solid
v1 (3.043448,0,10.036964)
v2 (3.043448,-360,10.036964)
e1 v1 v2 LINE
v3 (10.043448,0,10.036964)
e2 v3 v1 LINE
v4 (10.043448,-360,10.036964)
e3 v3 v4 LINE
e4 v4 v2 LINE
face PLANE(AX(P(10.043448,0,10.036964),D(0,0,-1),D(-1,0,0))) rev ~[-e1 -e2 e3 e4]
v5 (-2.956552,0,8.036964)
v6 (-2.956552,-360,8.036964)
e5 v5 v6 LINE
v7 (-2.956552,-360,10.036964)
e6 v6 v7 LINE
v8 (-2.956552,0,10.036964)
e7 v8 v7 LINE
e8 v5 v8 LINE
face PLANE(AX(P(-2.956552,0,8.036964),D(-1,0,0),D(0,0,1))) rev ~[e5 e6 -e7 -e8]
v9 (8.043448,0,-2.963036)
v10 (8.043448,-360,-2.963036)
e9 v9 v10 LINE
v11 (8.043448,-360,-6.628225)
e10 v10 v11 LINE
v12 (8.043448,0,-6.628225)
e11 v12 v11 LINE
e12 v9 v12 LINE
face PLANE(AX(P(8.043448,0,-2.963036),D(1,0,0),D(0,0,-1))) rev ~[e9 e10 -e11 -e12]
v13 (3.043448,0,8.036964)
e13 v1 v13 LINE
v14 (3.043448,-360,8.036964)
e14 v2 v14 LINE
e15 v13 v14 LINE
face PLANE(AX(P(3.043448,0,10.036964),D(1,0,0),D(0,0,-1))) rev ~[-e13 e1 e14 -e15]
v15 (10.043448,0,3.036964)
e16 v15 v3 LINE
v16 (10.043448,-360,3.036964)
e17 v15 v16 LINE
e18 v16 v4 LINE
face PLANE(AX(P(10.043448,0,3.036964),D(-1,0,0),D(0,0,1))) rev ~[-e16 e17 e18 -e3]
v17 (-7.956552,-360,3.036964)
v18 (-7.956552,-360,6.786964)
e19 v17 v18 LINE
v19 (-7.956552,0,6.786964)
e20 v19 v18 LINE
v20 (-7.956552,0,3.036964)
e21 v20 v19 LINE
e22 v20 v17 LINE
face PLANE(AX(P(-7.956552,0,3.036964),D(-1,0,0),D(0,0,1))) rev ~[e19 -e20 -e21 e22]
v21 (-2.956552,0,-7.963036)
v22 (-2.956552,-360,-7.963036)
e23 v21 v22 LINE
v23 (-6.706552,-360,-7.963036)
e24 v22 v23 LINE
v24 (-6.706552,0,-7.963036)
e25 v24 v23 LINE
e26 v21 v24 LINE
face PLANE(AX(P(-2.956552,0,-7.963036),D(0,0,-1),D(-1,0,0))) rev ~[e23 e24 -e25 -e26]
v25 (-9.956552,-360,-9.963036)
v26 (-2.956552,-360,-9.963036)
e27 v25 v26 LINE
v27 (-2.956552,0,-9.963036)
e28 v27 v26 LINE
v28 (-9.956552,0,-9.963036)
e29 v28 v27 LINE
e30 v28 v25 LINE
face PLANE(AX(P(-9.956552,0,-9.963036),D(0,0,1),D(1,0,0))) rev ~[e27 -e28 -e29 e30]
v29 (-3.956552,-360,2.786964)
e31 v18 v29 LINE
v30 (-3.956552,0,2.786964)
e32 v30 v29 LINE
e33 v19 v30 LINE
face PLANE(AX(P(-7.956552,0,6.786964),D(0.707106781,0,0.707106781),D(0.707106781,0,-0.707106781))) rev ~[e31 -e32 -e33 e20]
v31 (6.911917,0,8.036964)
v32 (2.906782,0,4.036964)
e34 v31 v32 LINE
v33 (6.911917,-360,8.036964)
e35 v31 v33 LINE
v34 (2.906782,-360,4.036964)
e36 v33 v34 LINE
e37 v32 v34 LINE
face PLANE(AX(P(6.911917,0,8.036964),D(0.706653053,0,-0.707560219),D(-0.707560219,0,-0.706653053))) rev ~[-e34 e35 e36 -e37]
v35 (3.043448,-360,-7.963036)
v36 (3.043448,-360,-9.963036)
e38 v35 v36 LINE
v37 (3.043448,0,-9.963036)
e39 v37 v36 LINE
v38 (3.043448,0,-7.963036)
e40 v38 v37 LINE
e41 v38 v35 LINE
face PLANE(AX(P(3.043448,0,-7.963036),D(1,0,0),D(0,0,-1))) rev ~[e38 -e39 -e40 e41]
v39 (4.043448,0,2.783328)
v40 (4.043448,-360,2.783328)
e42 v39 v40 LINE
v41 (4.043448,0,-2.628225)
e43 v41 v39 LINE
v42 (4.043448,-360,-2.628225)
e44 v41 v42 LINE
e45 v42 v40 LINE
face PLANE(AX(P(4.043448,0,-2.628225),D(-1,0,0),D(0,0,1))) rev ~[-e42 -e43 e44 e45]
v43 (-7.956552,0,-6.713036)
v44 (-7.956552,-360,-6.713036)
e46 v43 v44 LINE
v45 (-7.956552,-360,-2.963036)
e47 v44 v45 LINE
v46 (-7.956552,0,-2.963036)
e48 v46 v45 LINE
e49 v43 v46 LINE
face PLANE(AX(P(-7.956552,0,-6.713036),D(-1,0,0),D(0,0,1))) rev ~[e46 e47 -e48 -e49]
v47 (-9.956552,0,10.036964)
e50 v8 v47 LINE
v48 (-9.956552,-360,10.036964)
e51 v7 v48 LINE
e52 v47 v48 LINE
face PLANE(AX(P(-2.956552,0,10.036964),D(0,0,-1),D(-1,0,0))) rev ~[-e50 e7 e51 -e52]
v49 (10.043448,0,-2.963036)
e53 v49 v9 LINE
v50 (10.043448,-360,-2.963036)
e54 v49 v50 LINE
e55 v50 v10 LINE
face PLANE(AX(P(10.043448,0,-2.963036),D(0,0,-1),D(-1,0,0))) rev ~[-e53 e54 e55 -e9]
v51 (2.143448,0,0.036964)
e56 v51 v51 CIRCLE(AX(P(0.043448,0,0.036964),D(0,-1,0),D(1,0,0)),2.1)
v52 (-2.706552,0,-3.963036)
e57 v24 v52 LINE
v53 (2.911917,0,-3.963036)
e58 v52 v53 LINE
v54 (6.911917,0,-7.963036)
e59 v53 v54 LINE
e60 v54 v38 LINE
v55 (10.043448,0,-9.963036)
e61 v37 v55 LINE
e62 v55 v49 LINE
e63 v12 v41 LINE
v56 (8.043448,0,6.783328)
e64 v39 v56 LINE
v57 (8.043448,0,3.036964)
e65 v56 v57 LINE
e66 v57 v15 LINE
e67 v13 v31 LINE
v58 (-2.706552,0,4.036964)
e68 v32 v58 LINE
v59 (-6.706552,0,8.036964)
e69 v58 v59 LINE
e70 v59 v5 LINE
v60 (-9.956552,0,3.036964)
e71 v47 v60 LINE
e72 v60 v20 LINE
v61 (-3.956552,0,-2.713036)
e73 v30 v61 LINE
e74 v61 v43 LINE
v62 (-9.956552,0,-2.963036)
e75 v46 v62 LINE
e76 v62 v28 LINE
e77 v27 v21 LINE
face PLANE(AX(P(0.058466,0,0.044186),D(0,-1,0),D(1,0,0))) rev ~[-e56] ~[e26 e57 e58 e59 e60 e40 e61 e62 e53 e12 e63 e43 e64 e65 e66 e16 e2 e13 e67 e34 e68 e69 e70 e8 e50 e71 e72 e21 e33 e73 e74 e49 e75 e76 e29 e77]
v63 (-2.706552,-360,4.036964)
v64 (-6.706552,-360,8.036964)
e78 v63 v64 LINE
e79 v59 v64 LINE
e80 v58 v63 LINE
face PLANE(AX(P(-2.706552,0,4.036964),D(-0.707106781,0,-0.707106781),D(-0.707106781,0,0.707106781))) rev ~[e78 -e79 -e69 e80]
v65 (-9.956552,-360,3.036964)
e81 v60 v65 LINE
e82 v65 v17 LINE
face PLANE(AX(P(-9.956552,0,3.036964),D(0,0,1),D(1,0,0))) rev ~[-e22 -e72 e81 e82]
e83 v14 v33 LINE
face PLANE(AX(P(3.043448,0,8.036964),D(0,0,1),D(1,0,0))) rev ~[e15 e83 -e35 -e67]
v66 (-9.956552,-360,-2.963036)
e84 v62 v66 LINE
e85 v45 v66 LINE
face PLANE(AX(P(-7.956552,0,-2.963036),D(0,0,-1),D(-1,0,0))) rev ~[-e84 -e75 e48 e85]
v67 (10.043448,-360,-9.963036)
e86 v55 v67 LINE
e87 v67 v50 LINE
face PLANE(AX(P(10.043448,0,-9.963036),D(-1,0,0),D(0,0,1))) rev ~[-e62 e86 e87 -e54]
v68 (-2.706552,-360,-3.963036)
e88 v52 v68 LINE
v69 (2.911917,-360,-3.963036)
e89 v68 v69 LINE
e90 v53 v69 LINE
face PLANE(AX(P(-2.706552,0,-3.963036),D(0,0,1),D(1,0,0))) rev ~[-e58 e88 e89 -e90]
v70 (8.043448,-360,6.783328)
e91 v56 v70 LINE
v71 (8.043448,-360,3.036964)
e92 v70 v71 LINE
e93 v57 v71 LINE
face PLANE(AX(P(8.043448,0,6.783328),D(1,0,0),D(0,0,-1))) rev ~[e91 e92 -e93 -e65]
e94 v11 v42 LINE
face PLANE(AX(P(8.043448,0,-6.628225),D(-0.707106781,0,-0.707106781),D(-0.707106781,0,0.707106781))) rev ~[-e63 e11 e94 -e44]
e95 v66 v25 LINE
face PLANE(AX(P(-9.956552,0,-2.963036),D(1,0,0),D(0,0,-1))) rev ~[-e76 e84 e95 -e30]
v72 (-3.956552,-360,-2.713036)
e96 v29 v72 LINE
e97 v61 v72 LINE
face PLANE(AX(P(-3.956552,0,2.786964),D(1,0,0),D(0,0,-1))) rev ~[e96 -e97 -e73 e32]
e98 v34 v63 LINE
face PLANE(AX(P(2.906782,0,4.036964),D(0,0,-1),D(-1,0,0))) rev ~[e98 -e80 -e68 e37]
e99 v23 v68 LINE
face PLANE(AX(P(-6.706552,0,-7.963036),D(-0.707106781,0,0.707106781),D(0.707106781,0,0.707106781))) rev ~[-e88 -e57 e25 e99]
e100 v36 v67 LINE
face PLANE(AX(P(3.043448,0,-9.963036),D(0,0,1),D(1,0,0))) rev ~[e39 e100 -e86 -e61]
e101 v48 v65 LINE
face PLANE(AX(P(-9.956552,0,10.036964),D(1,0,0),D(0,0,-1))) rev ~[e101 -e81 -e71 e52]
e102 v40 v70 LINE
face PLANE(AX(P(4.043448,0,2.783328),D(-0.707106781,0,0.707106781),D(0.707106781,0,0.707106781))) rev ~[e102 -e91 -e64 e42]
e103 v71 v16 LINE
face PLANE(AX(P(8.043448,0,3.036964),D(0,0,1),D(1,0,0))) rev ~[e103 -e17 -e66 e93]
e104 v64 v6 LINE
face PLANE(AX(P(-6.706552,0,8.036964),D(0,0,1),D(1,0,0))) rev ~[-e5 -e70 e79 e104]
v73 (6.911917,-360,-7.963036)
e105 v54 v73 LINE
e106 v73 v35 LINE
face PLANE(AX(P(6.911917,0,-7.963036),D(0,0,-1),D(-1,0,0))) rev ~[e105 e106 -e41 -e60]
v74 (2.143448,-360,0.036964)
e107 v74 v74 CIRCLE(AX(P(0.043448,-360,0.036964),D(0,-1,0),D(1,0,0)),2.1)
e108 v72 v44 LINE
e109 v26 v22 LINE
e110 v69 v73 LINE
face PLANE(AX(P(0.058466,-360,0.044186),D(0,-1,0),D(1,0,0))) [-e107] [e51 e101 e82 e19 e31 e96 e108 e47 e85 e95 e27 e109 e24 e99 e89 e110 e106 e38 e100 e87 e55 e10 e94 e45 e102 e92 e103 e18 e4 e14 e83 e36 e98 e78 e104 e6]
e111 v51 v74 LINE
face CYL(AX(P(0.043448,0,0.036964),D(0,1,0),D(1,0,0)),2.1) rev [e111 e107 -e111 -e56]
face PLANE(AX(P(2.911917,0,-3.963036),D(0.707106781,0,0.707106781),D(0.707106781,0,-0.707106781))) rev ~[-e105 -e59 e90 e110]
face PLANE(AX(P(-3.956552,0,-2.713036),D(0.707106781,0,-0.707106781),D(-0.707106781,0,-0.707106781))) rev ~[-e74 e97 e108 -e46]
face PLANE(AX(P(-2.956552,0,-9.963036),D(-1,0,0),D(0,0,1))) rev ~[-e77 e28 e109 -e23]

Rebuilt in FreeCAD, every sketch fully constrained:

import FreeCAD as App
import Part
import Sketcher
Q = App.Units.Quantity

doc = App.newDocument("Part")
params = doc.addObject("Spreadsheet::Sheet", "Params")
for row, (alias, value) in enumerate([
    ("sketch1_diameter", "4.2 mm"),
    ("sketch1_width", "7 mm"),
    ("sketch1_width2", "2 mm"),
    ("sketch1_height", "5.5 mm"),
    ("pad1_length", "360 mm"),
], start=1):
    params.set(f"A{row}", alias)
    params.set(f"B{row}", "=" + value)
    params.setAlias(f"B{row}", alias)

body = doc.addObject("PartDesign::Body", "Body")

# Sketch on XZ plane
sketch1 = body.newObject("Sketcher::SketchObject", "Sketch")
sketch1.AttachmentSupport = (doc.getObject("XZ_Plane"), [""])
sketch1.MapMode = "FlatFace"
sketch1.addGeometry(Part.LineSegment(App.Vector(3, -10, 0), App.Vector(10, -10, 0)), False)
sketch1.addGeometry(Part.LineSegment(App.Vector(10, -10, 0), App.Vector(10, -3, 0)), False)
sketch1.addGeometry(Part.LineSegment(App.Vector(10, -3, 0), App.Vector(8, -3, 0)), False)
sketch1.addGeometry(Part.LineSegment(App.Vector(8, -3, 0), App.Vector(8, -6.6, 0)), False)
sketch1.addGeometry(Part.LineSegment(App.Vector(8, -6.6, 0), App.Vector(4, -2.6, 0)), False)
sketch1.addGeometry(Part.LineSegment(App.Vector(4, -2.6, 0), App.Vector(4, 2.8, 0)), False)
sketch1.addGeometry(Part.LineSegment(App.Vector(4, 2.8, 0), App.Vector(8, 6.8, 0)), False)
sketch1.addGeometry(Part.LineSegment(App.Vector(8, 6.8, 0), App.Vector(8, 3, 0)), False)
sketch1.addGeometry(Part.LineSegment(App.Vector(8, 3, 0), App.Vector(10, 3, 0)), False)
sketch1.addGeometry(Part.LineSegment(App.Vector(10, 3, 0), App.Vector(10, 10, 0)), False)
sketch1.addGeometry(Part.LineSegment(App.Vector(10, 10, 0), App.Vector(3, 10, 0)), False)
sketch1.addGeometry(Part.LineSegment(App.Vector(3, 10, 0), App.Vector(3, 8, 0)), False)
sketch1.addGeometry(Part.LineSegment(App.Vector(3, 8, 0), App.Vector(6.9, 8, 0)), False)
sketch1.addGeometry(Part.LineSegment(App.Vector(6.9, 8, 0), App.Vector(2.9, 4, 0)), False)
sketch1.addGeometry(Part.LineSegment(App.Vector(2.9, 4, 0), App.Vector(-2.7, 4, 0)), False)
sketch1.addGeometry(Part.LineSegment(App.Vector(-2.7, 4, 0), App.Vector(-6.7, 8, 0)), False)
sketch1.addGeometry(Part.LineSegment(App.Vector(-6.7, 8, 0), App.Vector(-3, 8, 0)), False)
sketch1.addGeometry(Part.LineSegment(App.Vector(-3, 8, 0), App.Vector(-3, 10, 0)), False)
sketch1.addGeometry(Part.LineSegment(App.Vector(-3, 10, 0), App.Vector(-10, 10, 0)), False)
sketch1.addGeometry(Part.LineSegment(App.Vector(-10, 10, 0), App.Vector(-10, 3, 0)), False)
sketch1.addGeometry(Part.LineSegment(App.Vector(-10, 3, 0), App.Vector(-8, 3, 0)), False)
sketch1.addGeometry(Part.LineSegment(App.Vector(-8, 3, 0), App.Vector(-8, 6.8, 0)), False)
sketch1.addGeometry(Part.LineSegment(App.Vector(-8, 6.8, 0), App.Vector(-4, 2.8, 0)), False)
sketch1.addGeometry(Part.LineSegment(App.Vector(-4, 2.8, 0), App.Vector(-4, -2.7, 0)), False)
sketch1.addGeometry(Part.LineSegment(App.Vector(-4, -2.7, 0), App.Vector(-8, -6.7, 0)), False)
sketch1.addGeometry(Part.LineSegment(App.Vector(-8, -6.7, 0), App.Vector(-8, -3, 0)), False)
sketch1.addGeometry(Part.LineSegment(App.Vector(-8, -3, 0), App.Vector(-10, -3, 0)), False)
sketch1.addGeometry(Part.LineSegment(App.Vector(-10, -3, 0), App.Vector(-10, -10, 0)), False)
sketch1.addGeometry(Part.LineSegment(App.Vector(-10, -10, 0), App.Vector(-3, -10, 0)), False)
sketch1.addGeometry(Part.LineSegment(App.Vector(-3, -10, 0), App.Vector(-3, -8, 0)), False)
sketch1.addGeometry(Part.LineSegment(App.Vector(-3, -8, 0), App.Vector(-6.7, -8, 0)), False)
sketch1.addGeometry(Part.LineSegment(App.Vector(-6.7, -8, 0), App.Vector(-2.7, -4, 0)), False)
sketch1.addGeometry(Part.LineSegment(App.Vector(-2.7, -4, 0), App.Vector(2.9, -4, 0)), False)
sketch1.addGeometry(Part.LineSegment(App.Vector(2.9, -4, 0), App.Vector(6.9, -8, 0)), False)
sketch1.addGeometry(Part.LineSegment(App.Vector(6.9, -8, 0), App.Vector(3, -8, 0)), False)
sketch1.addGeometry(Part.LineSegment(App.Vector(3, -8, 0), App.Vector(3, -10, 0)), False)
sketch1.addGeometry(Part.Circle(App.Vector(0, 0, 0), App.Vector(0, 0, 1), 2.1), False)
sketch1.addConstraint(Sketcher.Constraint("Coincident", 0, 2, 1, 1))
sketch1.addConstraint(Sketcher.Constraint("Coincident", 1, 2, 2, 1))
sketch1.addConstraint(Sketcher.Constraint("Coincident", 2, 2, 3, 1))
sketch1.addConstraint(Sketcher.Constraint("Coincident", 3, 2, 4, 1))
sketch1.addConstraint(Sketcher.Constraint("Coincident", 4, 2, 5, 1))
sketch1.addConstraint(Sketcher.Constraint("Coincident", 5, 2, 6, 1))
sketch1.addConstraint(Sketcher.Constraint("Coincident", 6, 2, 7, 1))
sketch1.addConstraint(Sketcher.Constraint("Coincident", 7, 2, 8, 1))
sketch1.addConstraint(Sketcher.Constraint("Coincident", 8, 2, 9, 1))
sketch1.addConstraint(Sketcher.Constraint("Coincident", 9, 2, 10, 1))
sketch1.addConstraint(Sketcher.Constraint("Coincident", 10, 2, 11, 1))
sketch1.addConstraint(Sketcher.Constraint("Coincident", 11, 2, 12, 1))
sketch1.addConstraint(Sketcher.Constraint("Coincident", 12, 2, 13, 1))
sketch1.addConstraint(Sketcher.Constraint("Coincident", 13, 2, 14, 1))
sketch1.addConstraint(Sketcher.Constraint("Coincident", 14, 2, 15, 1))
sketch1.addConstraint(Sketcher.Constraint("Coincident", 15, 2, 16, 1))
sketch1.addConstraint(Sketcher.Constraint("Coincident", 16, 2, 17, 1))
sketch1.addConstraint(Sketcher.Constraint("Coincident", 17, 2, 18, 1))
sketch1.addConstraint(Sketcher.Constraint("Coincident", 18, 2, 19, 1))
sketch1.addConstraint(Sketcher.Constraint("Coincident", 19, 2, 20, 1))
sketch1.addConstraint(Sketcher.Constraint("Coincident", 20, 2, 21, 1))
sketch1.addConstraint(Sketcher.Constraint("Coincident", 21, 2, 22, 1))
sketch1.addConstraint(Sketcher.Constraint("Coincident", 22, 2, 23, 1))
sketch1.addConstraint(Sketcher.Constraint("Coincident", 23, 2, 24, 1))
sketch1.addConstraint(Sketcher.Constraint("Coincident", 24, 2, 25, 1))
sketch1.addConstraint(Sketcher.Constraint("Coincident", 25, 2, 26, 1))
sketch1.addConstraint(Sketcher.Constraint("Coincident", 26, 2, 27, 1))
sketch1.addConstraint(Sketcher.Constraint("Coincident", 27, 2, 28, 1))
sketch1.addConstraint(Sketcher.Constraint("Coincident", 28, 2, 29, 1))
sketch1.addConstraint(Sketcher.Constraint("Coincident", 29, 2, 30, 1))
sketch1.addConstraint(Sketcher.Constraint("Coincident", 30, 2, 31, 1))
sketch1.addConstraint(Sketcher.Constraint("Coincident", 31, 2, 32, 1))
sketch1.addConstraint(Sketcher.Constraint("Coincident", 32, 2, 33, 1))
sketch1.addConstraint(Sketcher.Constraint("Coincident", 33, 2, 34, 1))
sketch1.addConstraint(Sketcher.Constraint("Coincident", 34, 2, 35, 1))
sketch1.addConstraint(Sketcher.Constraint("Coincident", 35, 2, 0, 1))
sketch1.addConstraint(Sketcher.Constraint("Horizontal", 0))
sketch1.addConstraint(Sketcher.Constraint("Vertical", 1))
sketch1.addConstraint(Sketcher.Constraint("Horizontal", 2))
sketch1.addConstraint(Sketcher.Constraint("Vertical", 3))
sketch1.addConstraint(Sketcher.Constraint("Vertical", 5))
sketch1.addConstraint(Sketcher.Constraint("Vertical", 7))
sketch1.addConstraint(Sketcher.Constraint("Horizontal", 8))
sketch1.addConstraint(Sketcher.Constraint("Vertical", 9))
sketch1.addConstraint(Sketcher.Constraint("Horizontal", 10))
sketch1.addConstraint(Sketcher.Constraint("Vertical", 11))
sketch1.addConstraint(Sketcher.Constraint("Horizontal", 12))
sketch1.addConstraint(Sketcher.Constraint("Horizontal", 14))
sketch1.addConstraint(Sketcher.Constraint("Horizontal", 16))
sketch1.addConstraint(Sketcher.Constraint("Vertical", 17))
sketch1.addConstraint(Sketcher.Constraint("Horizontal", 18))
sketch1.addConstraint(Sketcher.Constraint("Vertical", 19))
sketch1.addConstraint(Sketcher.Constraint("Horizontal", 20))
sketch1.addConstraint(Sketcher.Constraint("Vertical", 21))
sketch1.addConstraint(Sketcher.Constraint("Vertical", 23))
sketch1.addConstraint(Sketcher.Constraint("Vertical", 25))
sketch1.addConstraint(Sketcher.Constraint("Horizontal", 26))
sketch1.addConstraint(Sketcher.Constraint("Vertical", 27))
sketch1.addConstraint(Sketcher.Constraint("Horizontal", 28))
sketch1.addConstraint(Sketcher.Constraint("Vertical", 29))
sketch1.addConstraint(Sketcher.Constraint("Horizontal", 30))
sketch1.addConstraint(Sketcher.Constraint("Horizontal", 32))
sketch1.addConstraint(Sketcher.Constraint("Horizontal", 34))
sketch1.addConstraint(Sketcher.Constraint("Vertical", 35))
sketch1.addConstraint(Sketcher.Constraint("Perpendicular", 4, 6))
sketch1.addConstraint(Sketcher.Constraint("Perpendicular", 6, 15))
sketch1.addConstraint(Sketcher.Constraint("Parallel", 15, 22))
sketch1.addConstraint(Sketcher.Constraint("Perpendicular", 22, 24))
sketch1.addConstraint(Sketcher.Constraint("Parallel", 24, 31))
sketch1.addConstraint(Sketcher.Constraint("Perpendicular", 31, 33))
sketch1.addConstraint(Sketcher.Constraint("Horizontal", 12, 2, 15, 2))
sketch1.addConstraint(Sketcher.Constraint("Horizontal", 10, 2, 17, 2))
sketch1.addConstraint(Sketcher.Constraint("Horizontal", 8, 2, 19, 2))
sketch1.addConstraint(Sketcher.Constraint("Horizontal", 2, 2, 25, 2))
sketch1.addConstraint(Sketcher.Constraint("Horizontal", 0, 2, 27, 2))
sketch1.addConstraint(Sketcher.Constraint("Horizontal", 30, 2, 33, 2))
sketch1.addConstraint(Sketcher.Constraint("Vertical", 3, 2, 6, 2))
sketch1.addConstraint(Sketcher.Constraint("Vertical", 1, 2, 8, 2))
sketch1.addConstraint(Sketcher.Constraint("Vertical", 21, 2, 24, 2))
sketch1.addConstraint(Sketcher.Constraint("Vertical", 19, 2, 26, 2))
sketch1.addConstraint(Sketcher.Constraint("Vertical", 17, 2, 28, 2))
sketch1.addConstraint(Sketcher.Constraint("Vertical", 15, 2, 30, 2))
sketch1.addConstraint(Sketcher.Constraint("Vertical", 14, 2, 31, 2))
sketch1.addConstraint(Sketcher.Constraint("Vertical", 12, 2, 33, 2))
sketch1.addConstraint(Sketcher.Constraint("Vertical", 11, 2, 34, 2))
sketch1.addConstraint(Sketcher.Constraint("Equal", 10, 18))
sketch1.addConstraint(Sketcher.Constraint("Equal", 8, 20))
sketch1.addConstraint(Sketcher.Constraint("Equal", 28, 1))
sketch1.addConstraint(Sketcher.Constraint("Equal", 1, 9))
sketch1.addConstraint(Sketcher.Constraint("Equal", 26, 11))
sketch1.addConstraint(Sketcher.Constraint("Equal", 30, 21))
sketch1.addConstraint(Sketcher.Constraint("Equal", 21, 25))
sketch1.addConstraint(Sketcher.Constraint("Equal", 17, 29))
sketch1.addConstraint(Sketcher.Constraint("Equal", 4, 6))
sketch1.addConstraint(Sketcher.Constraint("Equal", 6, 15))
sketch1.addConstraint(Sketcher.Constraint("Equal", 15, 22))
sketch1.addConstraint(Sketcher.Constraint("Diameter", 36, Q("4.2 mm")))
sketch1.addConstraint(Sketcher.Constraint("DistanceX", 0, 1, 0, 2, Q("7 mm")))
sketch1.addConstraint(Sketcher.Constraint("DistanceX", 2, 2, 2, 1, Q("2 mm")))
sketch1.addConstraint(Sketcher.Constraint("DistanceY", 23, 2, 23, 1, Q("5.5 mm")))
sketch1.addConstraint(Sketcher.Constraint("DistanceX", 36, 3, 0, 2, Q("10 mm")))
sketch1.addConstraint(Sketcher.Constraint("DistanceY", 0, 2, 36, 3, Q("10 mm")))
sketch1.addConstraint(Sketcher.Constraint("DistanceX", 4, 2, 2, 2, Q("4 mm")))
sketch1.addConstraint(Sketcher.Constraint("DistanceY", 2, 2, 7, 2, Q("6 mm")))
sketch1.addConstraint(Sketcher.Constraint("DistanceX", 16, 2, 11, 2, Q("6 mm")))
sketch1.addConstraint(Sketcher.Constraint("DistanceX", 12, 1, 12, 2, Q("3.868469 mm")))
sketch1.addConstraint(Sketcher.Constraint("DistanceY", 3, 2, 3, 1, Q("3.665189 mm")))
sketch1.addConstraint(Sketcher.Constraint("DistanceX", 14, 2, 14, 1, Q("5.613334 mm")))
sketch1.addConstraint(Sketcher.Constraint("DistanceY", 5, 1, 5, 2, Q("5.411553 mm")))
sketch1.addConstraint(Sketcher.Constraint("DistanceY", -1, 1, 5, 2, Q("2.783328 mm")))
sketch1.addConstraint(Sketcher.Constraint("DistanceX", -1, 1, 10, 2, Q("3.043448 mm")))
sketch1.setExpression("Constraints[96]", "Params.sketch1_diameter")
sketch1.setExpression("Constraints[97]", "Params.sketch1_width")
sketch1.setExpression("Constraints[98]", "Params.sketch1_width2")
sketch1.setExpression("Constraints[99]", "Params.sketch1_height")
pad1 = body.newObject("PartDesign::Pad", "Pad")
pad1.Profile = sketch1
pad1.setExpression("Length", "Params.pad1_length")

doc.recompute()
